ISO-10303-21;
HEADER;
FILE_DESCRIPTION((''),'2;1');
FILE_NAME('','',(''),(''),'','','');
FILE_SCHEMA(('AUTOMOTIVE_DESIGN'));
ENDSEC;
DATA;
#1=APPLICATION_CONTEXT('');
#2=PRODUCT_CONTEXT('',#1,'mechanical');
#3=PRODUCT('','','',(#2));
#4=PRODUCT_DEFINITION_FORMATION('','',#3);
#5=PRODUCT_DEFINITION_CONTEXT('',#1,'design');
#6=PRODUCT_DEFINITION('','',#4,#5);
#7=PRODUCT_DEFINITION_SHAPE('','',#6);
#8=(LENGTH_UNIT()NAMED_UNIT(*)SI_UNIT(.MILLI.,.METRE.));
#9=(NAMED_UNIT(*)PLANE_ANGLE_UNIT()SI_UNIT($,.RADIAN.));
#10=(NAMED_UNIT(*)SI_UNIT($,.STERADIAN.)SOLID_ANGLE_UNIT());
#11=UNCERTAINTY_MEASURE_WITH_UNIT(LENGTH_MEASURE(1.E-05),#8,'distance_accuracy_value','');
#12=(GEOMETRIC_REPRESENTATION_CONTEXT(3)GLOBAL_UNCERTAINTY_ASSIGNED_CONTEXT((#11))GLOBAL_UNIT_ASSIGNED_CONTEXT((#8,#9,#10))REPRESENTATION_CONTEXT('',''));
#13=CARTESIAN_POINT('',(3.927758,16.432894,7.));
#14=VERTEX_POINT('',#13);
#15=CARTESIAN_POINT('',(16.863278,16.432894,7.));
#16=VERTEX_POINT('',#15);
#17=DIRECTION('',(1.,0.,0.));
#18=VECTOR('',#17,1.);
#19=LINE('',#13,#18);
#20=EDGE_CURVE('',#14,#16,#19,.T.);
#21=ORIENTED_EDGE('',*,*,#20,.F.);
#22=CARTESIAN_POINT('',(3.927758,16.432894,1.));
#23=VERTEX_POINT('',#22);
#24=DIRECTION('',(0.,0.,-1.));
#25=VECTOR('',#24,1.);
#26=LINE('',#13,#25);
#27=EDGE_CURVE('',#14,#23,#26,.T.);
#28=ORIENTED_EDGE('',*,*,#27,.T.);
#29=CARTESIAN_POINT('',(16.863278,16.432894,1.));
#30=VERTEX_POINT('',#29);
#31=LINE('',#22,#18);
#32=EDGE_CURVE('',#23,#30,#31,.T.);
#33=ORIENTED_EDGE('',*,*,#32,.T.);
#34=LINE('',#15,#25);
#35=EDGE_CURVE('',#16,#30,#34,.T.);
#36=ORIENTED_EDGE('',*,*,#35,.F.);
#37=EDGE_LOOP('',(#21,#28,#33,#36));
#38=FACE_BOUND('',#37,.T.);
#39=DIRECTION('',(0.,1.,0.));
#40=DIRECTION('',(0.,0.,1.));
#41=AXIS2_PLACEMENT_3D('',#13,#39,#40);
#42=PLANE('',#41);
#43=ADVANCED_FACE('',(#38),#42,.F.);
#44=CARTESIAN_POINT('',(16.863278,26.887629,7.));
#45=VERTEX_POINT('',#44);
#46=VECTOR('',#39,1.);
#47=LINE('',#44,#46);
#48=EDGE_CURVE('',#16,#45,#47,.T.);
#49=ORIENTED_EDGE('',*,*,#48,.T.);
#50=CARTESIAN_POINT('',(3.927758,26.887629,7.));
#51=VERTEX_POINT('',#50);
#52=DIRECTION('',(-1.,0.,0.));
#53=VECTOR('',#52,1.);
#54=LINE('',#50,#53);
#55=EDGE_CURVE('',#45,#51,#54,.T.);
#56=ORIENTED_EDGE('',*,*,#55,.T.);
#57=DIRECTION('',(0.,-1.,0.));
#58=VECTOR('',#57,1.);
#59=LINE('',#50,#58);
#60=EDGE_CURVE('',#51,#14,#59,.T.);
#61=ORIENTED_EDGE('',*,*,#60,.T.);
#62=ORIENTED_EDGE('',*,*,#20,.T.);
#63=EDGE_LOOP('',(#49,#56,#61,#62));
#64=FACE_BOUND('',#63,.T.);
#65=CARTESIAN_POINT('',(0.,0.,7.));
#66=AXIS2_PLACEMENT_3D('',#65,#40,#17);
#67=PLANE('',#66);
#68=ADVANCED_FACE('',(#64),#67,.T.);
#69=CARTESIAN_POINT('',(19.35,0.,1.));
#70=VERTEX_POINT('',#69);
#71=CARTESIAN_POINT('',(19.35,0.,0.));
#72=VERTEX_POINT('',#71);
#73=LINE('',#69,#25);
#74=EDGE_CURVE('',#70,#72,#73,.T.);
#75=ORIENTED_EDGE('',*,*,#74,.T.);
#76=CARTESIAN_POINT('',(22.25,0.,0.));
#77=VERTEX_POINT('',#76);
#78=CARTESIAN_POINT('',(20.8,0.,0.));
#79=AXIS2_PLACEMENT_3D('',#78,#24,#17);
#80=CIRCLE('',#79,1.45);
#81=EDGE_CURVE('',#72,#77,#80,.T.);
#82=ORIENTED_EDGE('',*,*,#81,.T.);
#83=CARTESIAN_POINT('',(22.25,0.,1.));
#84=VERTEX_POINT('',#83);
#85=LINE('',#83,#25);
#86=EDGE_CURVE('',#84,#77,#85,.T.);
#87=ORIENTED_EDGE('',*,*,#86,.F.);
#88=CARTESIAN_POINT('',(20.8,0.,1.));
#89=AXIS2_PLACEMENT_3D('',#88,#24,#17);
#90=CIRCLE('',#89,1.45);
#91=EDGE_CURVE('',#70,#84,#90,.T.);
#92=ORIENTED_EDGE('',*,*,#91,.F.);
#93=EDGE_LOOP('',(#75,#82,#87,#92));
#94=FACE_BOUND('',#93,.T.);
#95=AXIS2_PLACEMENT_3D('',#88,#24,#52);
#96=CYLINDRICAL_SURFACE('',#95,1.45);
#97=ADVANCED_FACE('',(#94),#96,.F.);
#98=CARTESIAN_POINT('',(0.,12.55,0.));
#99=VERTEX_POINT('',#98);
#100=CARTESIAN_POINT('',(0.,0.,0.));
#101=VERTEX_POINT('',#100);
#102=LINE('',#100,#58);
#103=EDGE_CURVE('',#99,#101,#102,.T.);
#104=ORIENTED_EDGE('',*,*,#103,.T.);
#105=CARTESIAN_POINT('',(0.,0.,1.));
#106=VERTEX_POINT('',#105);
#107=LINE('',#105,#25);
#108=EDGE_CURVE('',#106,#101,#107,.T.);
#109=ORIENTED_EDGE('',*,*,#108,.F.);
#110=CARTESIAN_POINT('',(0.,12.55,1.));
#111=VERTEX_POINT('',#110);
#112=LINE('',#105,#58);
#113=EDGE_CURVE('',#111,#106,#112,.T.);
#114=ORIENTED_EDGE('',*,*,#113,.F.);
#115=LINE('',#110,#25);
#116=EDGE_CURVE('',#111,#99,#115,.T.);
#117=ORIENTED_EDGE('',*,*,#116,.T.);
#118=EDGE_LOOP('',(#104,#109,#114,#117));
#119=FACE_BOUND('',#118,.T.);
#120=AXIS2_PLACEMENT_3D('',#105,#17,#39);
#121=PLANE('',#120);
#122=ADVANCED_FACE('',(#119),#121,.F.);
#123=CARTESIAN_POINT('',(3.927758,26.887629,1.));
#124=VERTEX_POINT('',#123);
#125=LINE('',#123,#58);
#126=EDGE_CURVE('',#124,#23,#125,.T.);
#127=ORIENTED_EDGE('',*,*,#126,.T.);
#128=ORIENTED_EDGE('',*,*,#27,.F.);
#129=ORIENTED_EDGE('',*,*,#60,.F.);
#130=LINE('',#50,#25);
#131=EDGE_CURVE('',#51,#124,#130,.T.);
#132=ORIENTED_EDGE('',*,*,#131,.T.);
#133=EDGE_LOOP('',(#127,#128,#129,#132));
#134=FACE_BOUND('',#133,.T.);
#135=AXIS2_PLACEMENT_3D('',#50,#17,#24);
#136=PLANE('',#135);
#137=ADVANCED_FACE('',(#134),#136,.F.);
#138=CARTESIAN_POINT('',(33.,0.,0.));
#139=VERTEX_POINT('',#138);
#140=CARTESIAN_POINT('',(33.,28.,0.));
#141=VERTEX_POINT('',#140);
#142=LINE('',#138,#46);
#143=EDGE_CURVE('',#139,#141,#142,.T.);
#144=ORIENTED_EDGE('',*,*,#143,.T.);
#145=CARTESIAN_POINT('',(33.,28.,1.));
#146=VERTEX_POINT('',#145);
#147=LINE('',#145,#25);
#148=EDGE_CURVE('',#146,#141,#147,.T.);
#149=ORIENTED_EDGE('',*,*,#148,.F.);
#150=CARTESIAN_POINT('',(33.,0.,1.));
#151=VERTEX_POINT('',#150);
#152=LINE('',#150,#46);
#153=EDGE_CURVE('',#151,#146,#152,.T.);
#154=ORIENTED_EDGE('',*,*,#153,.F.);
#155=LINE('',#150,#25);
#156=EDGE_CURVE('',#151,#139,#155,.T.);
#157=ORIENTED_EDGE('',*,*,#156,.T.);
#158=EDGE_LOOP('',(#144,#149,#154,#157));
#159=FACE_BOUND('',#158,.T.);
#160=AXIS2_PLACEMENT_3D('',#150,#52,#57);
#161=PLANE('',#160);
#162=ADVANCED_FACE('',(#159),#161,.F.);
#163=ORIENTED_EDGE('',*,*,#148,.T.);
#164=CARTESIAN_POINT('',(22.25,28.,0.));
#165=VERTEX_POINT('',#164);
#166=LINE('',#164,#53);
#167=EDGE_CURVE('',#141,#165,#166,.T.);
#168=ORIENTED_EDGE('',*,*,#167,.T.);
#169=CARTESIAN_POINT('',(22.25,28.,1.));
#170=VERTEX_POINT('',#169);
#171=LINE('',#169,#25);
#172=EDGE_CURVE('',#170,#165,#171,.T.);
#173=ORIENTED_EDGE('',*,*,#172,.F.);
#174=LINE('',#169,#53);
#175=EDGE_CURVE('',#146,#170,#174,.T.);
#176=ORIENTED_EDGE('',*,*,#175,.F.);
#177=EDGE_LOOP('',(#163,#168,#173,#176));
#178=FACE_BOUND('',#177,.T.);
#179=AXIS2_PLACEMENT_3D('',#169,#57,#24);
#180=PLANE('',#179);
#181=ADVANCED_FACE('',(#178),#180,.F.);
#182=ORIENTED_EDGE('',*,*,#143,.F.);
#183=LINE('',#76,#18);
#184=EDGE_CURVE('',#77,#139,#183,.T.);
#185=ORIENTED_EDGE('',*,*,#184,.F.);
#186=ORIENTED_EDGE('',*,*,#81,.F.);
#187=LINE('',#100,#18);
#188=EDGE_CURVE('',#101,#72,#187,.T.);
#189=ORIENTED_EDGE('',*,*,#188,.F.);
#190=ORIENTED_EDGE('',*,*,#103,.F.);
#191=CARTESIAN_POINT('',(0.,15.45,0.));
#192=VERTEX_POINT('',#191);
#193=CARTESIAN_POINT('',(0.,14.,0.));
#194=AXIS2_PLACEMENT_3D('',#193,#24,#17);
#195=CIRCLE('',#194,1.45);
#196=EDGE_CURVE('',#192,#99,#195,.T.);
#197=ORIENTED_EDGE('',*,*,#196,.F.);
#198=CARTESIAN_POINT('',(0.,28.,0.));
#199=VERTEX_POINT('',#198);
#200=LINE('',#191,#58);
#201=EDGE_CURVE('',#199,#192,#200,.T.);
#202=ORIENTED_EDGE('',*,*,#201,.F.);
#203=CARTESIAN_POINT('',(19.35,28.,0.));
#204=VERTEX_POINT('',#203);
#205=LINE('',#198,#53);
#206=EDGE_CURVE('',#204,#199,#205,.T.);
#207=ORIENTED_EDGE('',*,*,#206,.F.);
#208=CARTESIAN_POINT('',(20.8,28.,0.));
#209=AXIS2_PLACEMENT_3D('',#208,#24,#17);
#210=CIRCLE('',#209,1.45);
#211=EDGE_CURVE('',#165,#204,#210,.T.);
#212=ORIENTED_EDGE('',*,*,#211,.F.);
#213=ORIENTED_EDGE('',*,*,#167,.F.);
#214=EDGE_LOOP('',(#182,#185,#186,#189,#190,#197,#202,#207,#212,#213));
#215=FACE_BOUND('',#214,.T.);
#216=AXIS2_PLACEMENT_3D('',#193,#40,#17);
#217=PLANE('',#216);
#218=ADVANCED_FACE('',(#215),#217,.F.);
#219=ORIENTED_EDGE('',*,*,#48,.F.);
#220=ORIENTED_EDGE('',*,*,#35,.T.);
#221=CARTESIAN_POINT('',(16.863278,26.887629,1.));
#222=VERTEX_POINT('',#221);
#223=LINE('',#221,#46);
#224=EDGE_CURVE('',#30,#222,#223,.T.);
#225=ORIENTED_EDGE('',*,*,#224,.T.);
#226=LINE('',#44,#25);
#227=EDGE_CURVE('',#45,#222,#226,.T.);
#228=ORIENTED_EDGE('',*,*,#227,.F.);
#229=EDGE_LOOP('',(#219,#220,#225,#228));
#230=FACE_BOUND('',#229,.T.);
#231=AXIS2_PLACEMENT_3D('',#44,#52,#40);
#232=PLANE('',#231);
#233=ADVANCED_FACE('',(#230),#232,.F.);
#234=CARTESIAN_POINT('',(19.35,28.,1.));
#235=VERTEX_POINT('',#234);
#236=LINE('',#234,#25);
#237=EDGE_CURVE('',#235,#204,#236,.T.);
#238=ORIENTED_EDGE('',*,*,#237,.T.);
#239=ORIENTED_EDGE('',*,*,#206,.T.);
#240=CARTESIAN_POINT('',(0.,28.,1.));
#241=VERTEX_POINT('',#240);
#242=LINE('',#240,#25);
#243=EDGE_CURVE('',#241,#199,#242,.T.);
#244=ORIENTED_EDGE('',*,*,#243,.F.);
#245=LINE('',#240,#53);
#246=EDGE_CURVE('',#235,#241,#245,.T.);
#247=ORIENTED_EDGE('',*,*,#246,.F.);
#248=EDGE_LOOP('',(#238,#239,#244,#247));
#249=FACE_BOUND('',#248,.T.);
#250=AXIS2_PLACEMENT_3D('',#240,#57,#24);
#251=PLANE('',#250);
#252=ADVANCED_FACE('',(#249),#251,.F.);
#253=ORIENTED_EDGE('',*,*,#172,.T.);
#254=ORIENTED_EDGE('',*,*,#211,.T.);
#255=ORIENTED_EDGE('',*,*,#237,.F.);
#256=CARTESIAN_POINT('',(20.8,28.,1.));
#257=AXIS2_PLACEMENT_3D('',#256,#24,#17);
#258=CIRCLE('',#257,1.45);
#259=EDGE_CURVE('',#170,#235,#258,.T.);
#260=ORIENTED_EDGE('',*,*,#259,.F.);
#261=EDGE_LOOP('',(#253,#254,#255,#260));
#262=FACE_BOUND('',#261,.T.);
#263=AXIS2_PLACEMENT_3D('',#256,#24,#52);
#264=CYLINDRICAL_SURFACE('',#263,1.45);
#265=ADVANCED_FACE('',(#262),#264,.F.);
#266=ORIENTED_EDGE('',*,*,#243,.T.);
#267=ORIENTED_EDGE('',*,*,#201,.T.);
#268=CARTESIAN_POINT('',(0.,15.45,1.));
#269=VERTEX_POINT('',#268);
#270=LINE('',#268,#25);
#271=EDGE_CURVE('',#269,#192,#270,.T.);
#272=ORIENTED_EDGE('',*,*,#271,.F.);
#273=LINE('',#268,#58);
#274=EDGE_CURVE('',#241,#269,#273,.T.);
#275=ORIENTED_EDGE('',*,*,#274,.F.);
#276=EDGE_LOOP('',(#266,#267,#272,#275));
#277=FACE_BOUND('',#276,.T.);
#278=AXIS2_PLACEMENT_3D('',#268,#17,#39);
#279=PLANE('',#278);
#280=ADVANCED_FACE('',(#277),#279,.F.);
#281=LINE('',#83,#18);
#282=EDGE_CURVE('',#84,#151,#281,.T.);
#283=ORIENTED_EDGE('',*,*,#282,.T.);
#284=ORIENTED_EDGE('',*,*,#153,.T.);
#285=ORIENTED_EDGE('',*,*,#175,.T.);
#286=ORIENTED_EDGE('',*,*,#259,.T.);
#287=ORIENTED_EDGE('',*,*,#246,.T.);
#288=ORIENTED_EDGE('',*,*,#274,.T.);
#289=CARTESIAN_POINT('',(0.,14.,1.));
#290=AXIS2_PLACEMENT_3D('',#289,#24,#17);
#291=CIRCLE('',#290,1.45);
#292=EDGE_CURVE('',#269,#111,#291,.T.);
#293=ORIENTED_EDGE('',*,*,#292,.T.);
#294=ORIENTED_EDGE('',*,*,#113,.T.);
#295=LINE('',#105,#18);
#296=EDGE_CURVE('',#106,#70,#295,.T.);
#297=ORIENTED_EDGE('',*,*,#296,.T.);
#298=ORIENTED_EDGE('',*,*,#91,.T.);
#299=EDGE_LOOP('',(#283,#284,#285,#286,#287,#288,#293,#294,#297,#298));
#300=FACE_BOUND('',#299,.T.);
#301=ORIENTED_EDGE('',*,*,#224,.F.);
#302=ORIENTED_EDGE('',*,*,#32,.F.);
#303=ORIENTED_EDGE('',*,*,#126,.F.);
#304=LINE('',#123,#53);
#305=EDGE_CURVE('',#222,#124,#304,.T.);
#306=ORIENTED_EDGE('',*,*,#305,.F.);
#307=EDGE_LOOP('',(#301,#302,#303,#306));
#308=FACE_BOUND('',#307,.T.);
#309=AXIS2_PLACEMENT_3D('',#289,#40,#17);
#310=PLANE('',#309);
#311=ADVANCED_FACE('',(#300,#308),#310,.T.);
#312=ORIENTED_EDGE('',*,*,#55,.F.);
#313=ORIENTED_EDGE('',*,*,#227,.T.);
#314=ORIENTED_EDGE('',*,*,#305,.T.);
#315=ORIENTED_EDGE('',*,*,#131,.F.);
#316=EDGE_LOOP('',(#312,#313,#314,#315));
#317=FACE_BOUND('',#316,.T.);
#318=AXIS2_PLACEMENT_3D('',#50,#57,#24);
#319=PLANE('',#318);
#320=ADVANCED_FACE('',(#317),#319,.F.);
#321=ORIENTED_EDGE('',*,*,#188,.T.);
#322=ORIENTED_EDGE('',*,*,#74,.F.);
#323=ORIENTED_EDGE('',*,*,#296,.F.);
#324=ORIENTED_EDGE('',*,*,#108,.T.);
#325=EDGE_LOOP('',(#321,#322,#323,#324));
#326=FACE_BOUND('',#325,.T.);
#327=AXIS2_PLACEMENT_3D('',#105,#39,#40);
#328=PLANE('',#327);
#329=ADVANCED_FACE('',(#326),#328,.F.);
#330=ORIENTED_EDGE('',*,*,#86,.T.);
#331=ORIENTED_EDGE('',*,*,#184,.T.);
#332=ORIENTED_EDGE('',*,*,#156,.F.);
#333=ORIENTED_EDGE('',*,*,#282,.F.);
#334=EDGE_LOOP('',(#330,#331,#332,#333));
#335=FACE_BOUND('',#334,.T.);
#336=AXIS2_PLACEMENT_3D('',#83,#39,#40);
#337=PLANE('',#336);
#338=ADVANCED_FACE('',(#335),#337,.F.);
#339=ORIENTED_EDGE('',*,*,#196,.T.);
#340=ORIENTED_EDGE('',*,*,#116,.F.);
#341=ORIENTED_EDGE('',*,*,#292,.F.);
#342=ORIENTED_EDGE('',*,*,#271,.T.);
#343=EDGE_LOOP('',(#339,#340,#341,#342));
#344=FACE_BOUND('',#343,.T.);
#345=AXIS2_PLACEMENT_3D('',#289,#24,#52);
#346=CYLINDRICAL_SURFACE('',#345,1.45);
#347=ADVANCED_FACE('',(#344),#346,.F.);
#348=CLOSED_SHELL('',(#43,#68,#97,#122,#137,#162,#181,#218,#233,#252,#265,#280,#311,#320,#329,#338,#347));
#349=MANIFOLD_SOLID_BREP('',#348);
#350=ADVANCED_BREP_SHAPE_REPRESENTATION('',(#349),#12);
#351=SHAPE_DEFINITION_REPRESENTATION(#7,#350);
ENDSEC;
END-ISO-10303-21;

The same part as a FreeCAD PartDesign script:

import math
import FreeCAD as App
import Part
import Sketcher
Q = App.Units.Quantity


def add_polygon(sketch, points):
    """Adds a closed chain of lines whose ends are joined by coincident constraints."""
    first, n = sketch.GeometryCount, len(points)
    for a, b in zip(points, points[1:] + points[:1]):
        sketch.addGeometry(Part.LineSegment(App.Vector(*a, 0), App.Vector(*b, 0)), False)
    for i in range(n):
        sketch.addConstraint(Sketcher.Constraint("Coincident", first + i, 2, first + (i + 1) % n, 1))

doc = App.newDocument("Part")
body = doc.addObject("PartDesign::Body", "Body")

# Sketch on XY plane
sketch1 = body.newObject("Sketcher::SketchObject", "Sketch")
sketch1.AttachmentSupport = (doc.getObject("XY_Plane"), [""])
sketch1.MapMode = "FlatFace"
sketch1.addGeometry([
    Part.LineSegment(App.Vector(0, 0, 0), App.Vector(19.35, 0, 0)),  # 0
    Part.ArcOfCircle(Part.Circle(App.Vector(20.8, 0, 0), App.Vector(0, 0, 1), 1.45), math.radians(0), math.radians(180)),  # 1
    Part.LineSegment(App.Vector(22.25, 0, 0), App.Vector(33, 0, 0)),  # 2
    Part.LineSegment(App.Vector(33, 0, 0), App.Vector(33, 28, 0)),  # 3
    Part.LineSegment(App.Vector(33, 28, 0), App.Vector(22.25, 28, 0)),  # 4
    Part.ArcOfCircle(Part.Circle(App.Vector(20.8, 28, 0), App.Vector(0, 0, 1), 1.45), math.radians(180), math.radians(360)),  # 5
    Part.LineSegment(App.Vector(19.35, 28, 0), App.Vector(0, 28, 0)),  # 6
    Part.LineSegment(App.Vector(0, 28, 0), App.Vector(0, 15.45, 0)),  # 7
    Part.ArcOfCircle(Part.Circle(App.Vector(0, 14, 0), App.Vector(0, 0, 1), 1.45), math.radians(-90), math.radians(90)),  # 8
    Part.LineSegment(App.Vector(0, 12.55, 0), App.Vector(0, 0, 0)),  # 9
], False)
sketch1.addConstraint([
    Sketcher.Constraint("Coincident", 0, 2, 1, 2),
    Sketcher.Constraint("Coincident", 1, 1, 2, 1),
    Sketcher.Constraint("Coincident", 2, 2, 3, 1),
    Sketcher.Constraint("Coincident", 3, 2, 4, 1),
    Sketcher.Constraint("Coincident", 4, 2, 5, 2),
    Sketcher.Constraint("Coincident", 5, 1, 6, 1),
    Sketcher.Constraint("Coincident", 6, 2, 7, 1),
    Sketcher.Constraint("Coincident", 7, 2, 8, 2),
    Sketcher.Constraint("Coincident", 8, 1, 9, 1),
    Sketcher.Constraint("Coincident", 9, 2, 0, 1),
    Sketcher.Constraint("Horizontal", 0),
    Sketcher.Constraint("Horizontal", 2),
    Sketcher.Constraint("Vertical", 3),
    Sketcher.Constraint("Horizontal", 4),
    Sketcher.Constraint("Horizontal", 6),
    Sketcher.Constraint("Vertical", 7),
    Sketcher.Constraint("Vertical", 9),
    Sketcher.Constraint("Coincident", 9, 2, -1, 1),
    Sketcher.Constraint("Equal", 1, 5),
    Sketcher.Constraint("Equal", 5, 8),
    Sketcher.Constraint("PointOnObject", 1, 3, -1),
    Sketcher.Constraint("PointOnObject", 8, 3, -2),
    Sketcher.Constraint("PointOnObject", 1, 1, -1),
    Sketcher.Constraint("PointOnObject", 6, 2, -2),
    Sketcher.Constraint("Horizontal", 5, 3, 3, 2),
    Sketcher.Constraint("Horizontal", 4, 2, 5, 1),
    Sketcher.Constraint("Vertical", 1, 3, 5, 3),
    Sketcher.Constraint("Equal", 7, 9),
    Sketcher.Constraint("DistanceY", 3, 1, 3, 2, Q("28 mm")),
    Sketcher.Constraint("Radius", 1, Q("1.45 mm")),
    Sketcher.Constraint("DistanceX", -1, 1, 2, 2, Q("33 mm")),
    Sketcher.Constraint("DistanceX", 0, 1, 0, 2, Q("19.35 mm")),
])
pad1 = body.newObject("PartDesign::Pad", "Pad")
pad1.Profile = sketch1
pad1.Length = 1

# Sketch on XY plane
sketch2 = body.newObject("Sketcher::SketchObject", "Sketch001")
sketch2.AttachmentSupport = (doc.getObject("XY_Plane"), [""])
sketch2.MapMode = "FlatFace"
sketch2.AttachmentOffset = App.Placement(App.Vector(0, 0, 1), App.Rotation())
add_polygon(sketch2, [(3.927758, 26.887629), (3.927758, 16.432894), (16.863278, 16.432894), (16.863278, 26.887629)])  # lines 0-3
sketch2.addConstraint([
    Sketcher.Constraint("Vertical", 0),
    Sketcher.Constraint("Horizontal", 1),
    Sketcher.Constraint("Vertical", 2),
    Sketcher.Constraint("Horizontal", 3),
    Sketcher.Constraint("DistanceX", 1, 1, 1, 2, Q("12.93552 mm")),
    Sketcher.Constraint("DistanceY", 0, 2, 0, 1, Q("10.454735 mm")),
    Sketcher.Constraint("DistanceX", -1, 1, 0, 2, Q("3.927758 mm")),
    Sketcher.Constraint("DistanceY", -1, 1, 2, 2, Q("26.887629 mm")),
])
pad2 = body.newObject("PartDesign::Pad", "Pad001")
pad2.Profile = sketch2
pad2.Length = 6

doc.recompute()
